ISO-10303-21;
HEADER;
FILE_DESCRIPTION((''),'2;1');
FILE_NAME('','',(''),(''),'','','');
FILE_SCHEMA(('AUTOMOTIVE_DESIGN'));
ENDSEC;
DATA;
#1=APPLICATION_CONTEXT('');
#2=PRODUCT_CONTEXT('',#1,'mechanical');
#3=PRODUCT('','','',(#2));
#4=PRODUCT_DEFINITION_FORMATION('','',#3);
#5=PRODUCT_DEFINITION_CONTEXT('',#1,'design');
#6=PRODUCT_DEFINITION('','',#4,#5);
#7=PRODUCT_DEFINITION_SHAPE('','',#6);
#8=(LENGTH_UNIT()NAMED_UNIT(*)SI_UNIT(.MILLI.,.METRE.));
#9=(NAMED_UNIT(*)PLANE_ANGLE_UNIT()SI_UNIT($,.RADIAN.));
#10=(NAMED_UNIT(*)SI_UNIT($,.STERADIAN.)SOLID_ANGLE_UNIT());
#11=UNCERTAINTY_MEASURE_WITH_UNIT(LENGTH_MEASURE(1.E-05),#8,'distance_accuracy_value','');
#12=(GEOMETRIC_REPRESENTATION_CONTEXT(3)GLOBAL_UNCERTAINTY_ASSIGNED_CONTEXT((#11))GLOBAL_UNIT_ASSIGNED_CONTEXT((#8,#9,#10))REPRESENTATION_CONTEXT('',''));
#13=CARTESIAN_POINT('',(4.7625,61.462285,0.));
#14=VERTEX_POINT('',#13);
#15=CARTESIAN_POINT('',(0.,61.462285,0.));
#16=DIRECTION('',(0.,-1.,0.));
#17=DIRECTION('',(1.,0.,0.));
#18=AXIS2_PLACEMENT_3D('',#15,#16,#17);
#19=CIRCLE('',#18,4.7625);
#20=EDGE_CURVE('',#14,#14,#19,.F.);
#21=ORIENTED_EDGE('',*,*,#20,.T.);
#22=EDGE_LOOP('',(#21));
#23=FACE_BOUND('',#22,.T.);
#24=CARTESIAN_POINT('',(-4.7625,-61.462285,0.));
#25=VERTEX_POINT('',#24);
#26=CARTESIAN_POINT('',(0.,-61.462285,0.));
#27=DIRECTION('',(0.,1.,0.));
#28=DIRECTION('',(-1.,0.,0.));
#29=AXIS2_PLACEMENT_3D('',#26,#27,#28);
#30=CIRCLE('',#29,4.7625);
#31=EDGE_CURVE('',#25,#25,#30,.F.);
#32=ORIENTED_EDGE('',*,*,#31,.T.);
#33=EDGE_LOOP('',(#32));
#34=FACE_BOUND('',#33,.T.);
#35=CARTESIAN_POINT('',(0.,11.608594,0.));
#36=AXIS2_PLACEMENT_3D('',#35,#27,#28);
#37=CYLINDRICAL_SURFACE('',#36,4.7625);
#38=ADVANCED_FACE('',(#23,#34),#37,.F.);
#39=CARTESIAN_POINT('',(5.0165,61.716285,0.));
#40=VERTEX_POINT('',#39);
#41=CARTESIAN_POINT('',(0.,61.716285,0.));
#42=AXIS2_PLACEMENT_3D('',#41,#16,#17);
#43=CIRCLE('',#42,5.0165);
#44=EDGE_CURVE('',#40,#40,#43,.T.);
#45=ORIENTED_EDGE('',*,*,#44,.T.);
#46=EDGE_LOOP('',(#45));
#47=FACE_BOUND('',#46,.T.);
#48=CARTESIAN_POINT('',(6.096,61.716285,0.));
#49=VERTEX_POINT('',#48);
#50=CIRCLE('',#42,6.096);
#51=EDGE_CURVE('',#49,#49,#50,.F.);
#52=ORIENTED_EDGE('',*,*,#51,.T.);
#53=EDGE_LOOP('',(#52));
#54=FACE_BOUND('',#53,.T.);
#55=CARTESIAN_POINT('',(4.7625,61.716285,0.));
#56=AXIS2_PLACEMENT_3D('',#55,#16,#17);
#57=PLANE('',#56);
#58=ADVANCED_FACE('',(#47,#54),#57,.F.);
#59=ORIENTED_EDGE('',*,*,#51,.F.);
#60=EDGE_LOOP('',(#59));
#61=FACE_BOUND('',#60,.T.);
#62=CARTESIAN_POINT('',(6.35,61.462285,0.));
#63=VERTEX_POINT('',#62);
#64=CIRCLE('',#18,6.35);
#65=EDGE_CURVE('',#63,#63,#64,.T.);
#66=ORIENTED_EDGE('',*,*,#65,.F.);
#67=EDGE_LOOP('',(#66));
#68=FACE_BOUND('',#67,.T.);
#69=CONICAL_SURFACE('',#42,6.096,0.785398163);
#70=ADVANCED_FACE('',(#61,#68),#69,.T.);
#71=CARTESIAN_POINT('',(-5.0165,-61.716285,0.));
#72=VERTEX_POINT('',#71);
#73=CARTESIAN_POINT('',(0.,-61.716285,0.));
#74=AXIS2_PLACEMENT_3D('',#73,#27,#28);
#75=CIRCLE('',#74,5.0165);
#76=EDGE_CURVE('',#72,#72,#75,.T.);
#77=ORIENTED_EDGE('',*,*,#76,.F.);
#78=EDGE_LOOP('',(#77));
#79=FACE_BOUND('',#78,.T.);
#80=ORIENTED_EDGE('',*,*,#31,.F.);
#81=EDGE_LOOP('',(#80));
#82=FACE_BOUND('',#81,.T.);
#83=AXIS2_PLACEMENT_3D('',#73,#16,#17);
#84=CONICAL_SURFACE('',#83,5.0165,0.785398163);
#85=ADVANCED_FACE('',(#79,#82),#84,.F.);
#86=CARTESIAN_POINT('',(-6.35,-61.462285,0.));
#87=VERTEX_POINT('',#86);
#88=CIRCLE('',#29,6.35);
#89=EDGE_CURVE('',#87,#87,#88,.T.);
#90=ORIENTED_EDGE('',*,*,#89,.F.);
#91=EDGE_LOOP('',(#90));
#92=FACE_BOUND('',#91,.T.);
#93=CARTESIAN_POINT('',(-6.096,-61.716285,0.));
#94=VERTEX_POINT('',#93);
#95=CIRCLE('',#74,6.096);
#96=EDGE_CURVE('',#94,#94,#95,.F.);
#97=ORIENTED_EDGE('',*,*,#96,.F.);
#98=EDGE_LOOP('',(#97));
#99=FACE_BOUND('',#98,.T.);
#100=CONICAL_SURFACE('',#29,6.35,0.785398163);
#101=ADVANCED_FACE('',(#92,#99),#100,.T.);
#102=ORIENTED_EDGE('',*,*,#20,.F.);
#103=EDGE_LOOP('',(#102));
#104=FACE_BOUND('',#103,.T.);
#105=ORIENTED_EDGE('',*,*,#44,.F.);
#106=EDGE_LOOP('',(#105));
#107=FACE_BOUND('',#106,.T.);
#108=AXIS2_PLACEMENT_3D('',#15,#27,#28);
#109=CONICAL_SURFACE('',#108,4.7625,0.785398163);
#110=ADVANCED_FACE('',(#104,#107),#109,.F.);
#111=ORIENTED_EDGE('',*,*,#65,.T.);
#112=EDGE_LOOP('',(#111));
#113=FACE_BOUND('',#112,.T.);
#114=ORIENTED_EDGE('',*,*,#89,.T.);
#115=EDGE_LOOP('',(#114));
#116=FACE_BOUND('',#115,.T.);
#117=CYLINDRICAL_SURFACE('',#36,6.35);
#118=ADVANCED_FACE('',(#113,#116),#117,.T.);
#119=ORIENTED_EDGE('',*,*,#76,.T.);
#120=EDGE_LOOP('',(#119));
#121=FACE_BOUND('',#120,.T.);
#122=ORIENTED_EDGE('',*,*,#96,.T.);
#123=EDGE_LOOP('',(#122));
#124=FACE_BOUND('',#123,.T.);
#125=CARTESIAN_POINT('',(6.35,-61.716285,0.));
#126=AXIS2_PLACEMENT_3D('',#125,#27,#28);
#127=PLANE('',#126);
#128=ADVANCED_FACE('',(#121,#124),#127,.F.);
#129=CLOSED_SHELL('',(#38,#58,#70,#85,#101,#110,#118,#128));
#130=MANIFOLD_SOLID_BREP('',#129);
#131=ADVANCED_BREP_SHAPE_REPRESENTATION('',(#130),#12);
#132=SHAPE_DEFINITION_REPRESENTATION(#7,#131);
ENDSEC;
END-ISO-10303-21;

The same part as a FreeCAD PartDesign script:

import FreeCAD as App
import Part
import Sketcher

V = App.Vector
Q = App.Units.Quantity


def edges_at(feature, points):
    """Names of the edges that pass closest to the given points."""
    edges = feature.Shape.Edges
    near = lambda p: min(range(len(edges)), key=lambda i: edges[i].distToShape(Part.Vertex(*p))[0])
    return sorted({f"Edge{near(p) + 1}" for p in points})


def add_polygon(sketch, points):
    """Adds a closed chain of lines whose ends are joined by coincident constraints."""
    first, n = sketch.GeometryCount, len(points)
    for a, b in zip(points, points[1:] + points[:1]):
        sketch.addGeometry(Part.LineSegment(App.Vector(*a, 0), App.Vector(*b, 0)), False)
    for i in range(n):
        sketch.addConstraint(Sketcher.Constraint("Coincident", first + i, 2, first + (i + 1) % n, 1))

doc = App.newDocument("Part")
params = doc.addObject("Spreadsheet::Sheet", "Params")
for row, (alias, value) in enumerate([
    ("sketch1_width", "0.0625 in"),
    ("revolution_angle", "360 deg"),
    ("chamfer_size", "0.01 in"),
], start=1):
    params.set(f"A{row}", alias)
    params.set(f"B{row}", "=" + value)
    params.setAlias(f"B{row}", alias)

body = doc.addObject("PartDesign::Body", "Body")

sketch1 = body.newObject("Sketcher::SketchObject", "Sketch")
sketch1.AttachmentSupport = (doc.getObject("XY_Plane"), [""])
sketch1.MapMode = "FlatFace"
add_polygon(sketch1, [(4.7625, 61.716285), (4.7625, -61.716285), (6.35, -61.716285), (6.35, 61.716285)])
sketch1.addConstraint(Sketcher.Constraint("Vertical", 0))
sketch1.addConstraint(Sketcher.Constraint("Horizontal", 1))
sketch1.addConstraint(Sketcher.Constraint("Vertical", 2))
sketch1.addConstraint(Sketcher.Constraint("Horizontal", 3))
sketch1.addConstraint(Sketcher.Constraint("DistanceX", 1, 1, 1, 2, Q("0.0625 in")))
sketch1.addConstraint(Sketcher.Constraint("DistanceX", -1, 1, 1, 2, Q("0.25 in")))
sketch1.addConstraint(Sketcher.Constraint("DistanceY", 0, 2, 0, 1, 123.43257))
sketch1.addConstraint(Sketcher.Constraint("DistanceY", 0, 2, -1, 1, 61.716285))
sketch1.setExpression("Constraints[8]", "Params.sketch1_width")
revolution = body.newObject("PartDesign::Revolution", "Revolution")
revolution.Profile = sketch1
revolution.ReferenceAxis = (sketch1, ["V_Axis"])
revolution.setExpression("Angle", "Params.revolution_angle")
doc.recompute()

chamfer = body.newObject("PartDesign::Chamfer", "Chamfer")
chamfer.Base = (revolution, edges_at(revolution, [
    (-4.763, -61.716, 0),
    (-6.35, -61.716, 0),
    (-6.35, 61.716, 0),
    (-4.763, 61.716, 0),
]))
chamfer.setExpression("Size", "Params.chamfer_size")

doc.recompute()
